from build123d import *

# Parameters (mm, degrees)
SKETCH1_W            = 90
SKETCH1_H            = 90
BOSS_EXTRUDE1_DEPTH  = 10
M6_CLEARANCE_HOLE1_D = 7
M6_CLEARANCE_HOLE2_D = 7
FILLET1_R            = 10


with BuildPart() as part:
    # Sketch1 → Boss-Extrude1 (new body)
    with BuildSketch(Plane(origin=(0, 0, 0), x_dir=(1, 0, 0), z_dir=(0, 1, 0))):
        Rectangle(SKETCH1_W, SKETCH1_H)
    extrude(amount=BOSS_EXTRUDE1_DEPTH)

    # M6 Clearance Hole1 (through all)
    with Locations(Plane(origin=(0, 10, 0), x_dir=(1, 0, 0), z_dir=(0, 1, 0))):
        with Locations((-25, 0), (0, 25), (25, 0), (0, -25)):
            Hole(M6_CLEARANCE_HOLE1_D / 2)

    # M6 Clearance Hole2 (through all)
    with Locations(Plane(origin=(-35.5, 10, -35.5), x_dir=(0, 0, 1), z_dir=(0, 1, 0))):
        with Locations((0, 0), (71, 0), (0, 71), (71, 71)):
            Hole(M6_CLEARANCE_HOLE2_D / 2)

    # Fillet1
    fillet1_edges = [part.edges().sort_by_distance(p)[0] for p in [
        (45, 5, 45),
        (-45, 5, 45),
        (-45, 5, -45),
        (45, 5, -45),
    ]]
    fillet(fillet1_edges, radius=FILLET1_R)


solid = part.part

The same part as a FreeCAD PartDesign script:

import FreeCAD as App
import Part
import Sketcher

V = App.Vector
Q = App.Units.Quantity


def edges_at(feature, points):
    """Names of the edges that pass closest to the given points."""
    edges = feature.Shape.Edges
    near = lambda p: min(range(len(edges)), key=lambda i: edges[i].distToShape(Part.Vertex(*p))[0])
    return sorted({f"Edge{near(p) + 1}" for p in points})

doc = App.newDocument("Part")
body = doc.addObject("PartDesign::Body", "Body")

# Sketch on XZ plane
sketch1 = body.newObject("Sketcher::SketchObject", "Sketch")
sketch1.AttachmentSupport = (doc.getObject("XZ_Plane"), [""])
sketch1.MapMode = "FlatFace"
sketch1.addGeometry([
    Part.LineSegment(V(-45, -45, 0), V(-45, 45, 0)),
    Part.LineSegment(V(-45, 45, 0), V(45, 45, 0)),
    Part.LineSegment(V(45, 45, 0), V(45, -45, 0)),
    Part.LineSegment(V(45, -45, 0), V(-45, -45, 0)),
], False)
sketch1.addConstraint([
    Sketcher.Constraint("Coincident", 0, 2, 1, 1),
    Sketcher.Constraint("Coincident", 1, 2, 2, 1),
    Sketcher.Constraint("Coincident", 2, 2, 3, 1),
    Sketcher.Constraint("Coincident", 3, 2, 0, 1),
    Sketcher.Constraint("Vertical", 0),
    Sketcher.Constraint("Horizontal", 1),
    Sketcher.Constraint("Vertical", 2),
    Sketcher.Constraint("Horizontal", 3),
    Sketcher.Constraint("Symmetric", 0, 2, 2, 2, -1, 1),
    Sketcher.Constraint("Equal", 3, 0),
    Sketcher.Constraint("DistanceX", 1, 1, 1, 2, Q("90 mm")),
])
pad1 = body.newObject("PartDesign::Pad", "Pad")
pad1.Profile = sketch1
pad1.Length = 10
pad1.Reversed = True

# Sketch on XZ plane
sketch2 = body.newObject("Sketcher::SketchObject", "Sketch001")
sketch2.AttachmentSupport = (doc.getObject("XZ_Plane"), [""])
sketch2.MapMode = "FlatFace"
sketch2.AttachmentOffset = App.Placement(V(0, 0, -10), App.Rotation())
sketch2.addGeometry([
    Part.Circle(V(-25, 0, 0), V(0, 0, 1), 3.5),
    Part.Circle(V(0, -25, 0), V(0, 0, 1), 3.5),
    Part.Circle(V(25, 0, 0), V(0, 0, 1), 3.5),
    Part.Circle(V(0, 25, 0), V(0, 0, 1), 3.5),
], False)
sketch2.addConstraint([
    Sketcher.Constraint("Equal", 0, 1),
    Sketcher.Constraint("Equal", 1, 2),
    Sketcher.Constraint("Equal", 2, 3),
    Sketcher.Constraint("Symmetric", 0, 3, 2, 3, -1, 1),
    Sketcher.Constraint("Symmetric", 1, 3, 3, 3, -1, 1),
    Sketcher.Constraint("PointOnObject", 0, 3, -1),
    Sketcher.Constraint("PointOnObject", 1, 3, -2),
    Sketcher.Constraint("Diameter", 0, Q("7 mm")),
    Sketcher.Constraint("DistanceX", 0, 3, -1, 1, Q("25 mm")),
    Sketcher.Constraint("DistanceY", 1, 3, -1, 1, Q("25 mm")),
])
doc.recompute()
hole = body.newObject("PartDesign::Hole", "Hole")
hole.Profile = sketch2
hole.ThreadType = "None"
hole.Diameter = 7
hole.DepthType = "ThroughAll"
hole.Reversed = True

# Sketch on XZ plane
sketch3 = body.newObject("Sketcher::SketchObject", "Sketch002")
sketch3.AttachmentSupport = (doc.getObject("XZ_Plane"), [""])
sketch3.MapMode = "FlatFace"
sketch3.AttachmentOffset = App.Placement(V(0, 0, -10), App.Rotation())
sketch3.addGeometry([
    Part.Circle(V(-35.5, -35.5, 0), V(0, 0, 1), 3.5),
    Part.Circle(V(-35.5, 35.5, 0), V(0, 0, 1), 3.5),
    Part.Circle(V(35.5, -35.5, 0), V(0, 0, 1), 3.5),
    Part.Circle(V(35.5, 35.5, 0), V(0, 0, 1), 3.5),
], False)
sketch3.addConstraint([
    Sketcher.Constraint("Equal", 0, 1),
    Sketcher.Constraint("Equal", 1, 2),
    Sketcher.Constraint("Equal", 2, 3),
    Sketcher.Constraint("Symmetric", 1, 3, 2, 3, -1, 1),
    Sketcher.Constraint("Symmetric", 0, 3, 3, 3, -1, 1),
    Sketcher.Constraint("Symmetric", 0, 3, 2, 3, -2),
    Sketcher.Constraint("Diameter", 0, Q("7 mm")),
    Sketcher.Constraint("DistanceY", 0, 3, 1, 3, Q("71 mm")),
    Sketcher.Constraint("DistanceX", 0, 3, 2, 3, Q("71 mm")),
])
doc.recompute()
hole2 = body.newObject("PartDesign::Hole", "Hole001")
hole2.Profile = sketch3
hole2.ThreadType = "None"
hole2.Diameter = 7
hole2.DepthType = "ThroughAll"
hole2.Reversed = True
doc.recompute()

fillet = body.newObject("PartDesign::Fillet", "Fillet")
fillet.Base = (hole2, edges_at(hole2, [
    (45, 5, 45),
    (-45, 5, 45),
    (-45, 5, -45),
    (45, 5, -45),
]))
fillet.Radius = 10

doc.recompute()
